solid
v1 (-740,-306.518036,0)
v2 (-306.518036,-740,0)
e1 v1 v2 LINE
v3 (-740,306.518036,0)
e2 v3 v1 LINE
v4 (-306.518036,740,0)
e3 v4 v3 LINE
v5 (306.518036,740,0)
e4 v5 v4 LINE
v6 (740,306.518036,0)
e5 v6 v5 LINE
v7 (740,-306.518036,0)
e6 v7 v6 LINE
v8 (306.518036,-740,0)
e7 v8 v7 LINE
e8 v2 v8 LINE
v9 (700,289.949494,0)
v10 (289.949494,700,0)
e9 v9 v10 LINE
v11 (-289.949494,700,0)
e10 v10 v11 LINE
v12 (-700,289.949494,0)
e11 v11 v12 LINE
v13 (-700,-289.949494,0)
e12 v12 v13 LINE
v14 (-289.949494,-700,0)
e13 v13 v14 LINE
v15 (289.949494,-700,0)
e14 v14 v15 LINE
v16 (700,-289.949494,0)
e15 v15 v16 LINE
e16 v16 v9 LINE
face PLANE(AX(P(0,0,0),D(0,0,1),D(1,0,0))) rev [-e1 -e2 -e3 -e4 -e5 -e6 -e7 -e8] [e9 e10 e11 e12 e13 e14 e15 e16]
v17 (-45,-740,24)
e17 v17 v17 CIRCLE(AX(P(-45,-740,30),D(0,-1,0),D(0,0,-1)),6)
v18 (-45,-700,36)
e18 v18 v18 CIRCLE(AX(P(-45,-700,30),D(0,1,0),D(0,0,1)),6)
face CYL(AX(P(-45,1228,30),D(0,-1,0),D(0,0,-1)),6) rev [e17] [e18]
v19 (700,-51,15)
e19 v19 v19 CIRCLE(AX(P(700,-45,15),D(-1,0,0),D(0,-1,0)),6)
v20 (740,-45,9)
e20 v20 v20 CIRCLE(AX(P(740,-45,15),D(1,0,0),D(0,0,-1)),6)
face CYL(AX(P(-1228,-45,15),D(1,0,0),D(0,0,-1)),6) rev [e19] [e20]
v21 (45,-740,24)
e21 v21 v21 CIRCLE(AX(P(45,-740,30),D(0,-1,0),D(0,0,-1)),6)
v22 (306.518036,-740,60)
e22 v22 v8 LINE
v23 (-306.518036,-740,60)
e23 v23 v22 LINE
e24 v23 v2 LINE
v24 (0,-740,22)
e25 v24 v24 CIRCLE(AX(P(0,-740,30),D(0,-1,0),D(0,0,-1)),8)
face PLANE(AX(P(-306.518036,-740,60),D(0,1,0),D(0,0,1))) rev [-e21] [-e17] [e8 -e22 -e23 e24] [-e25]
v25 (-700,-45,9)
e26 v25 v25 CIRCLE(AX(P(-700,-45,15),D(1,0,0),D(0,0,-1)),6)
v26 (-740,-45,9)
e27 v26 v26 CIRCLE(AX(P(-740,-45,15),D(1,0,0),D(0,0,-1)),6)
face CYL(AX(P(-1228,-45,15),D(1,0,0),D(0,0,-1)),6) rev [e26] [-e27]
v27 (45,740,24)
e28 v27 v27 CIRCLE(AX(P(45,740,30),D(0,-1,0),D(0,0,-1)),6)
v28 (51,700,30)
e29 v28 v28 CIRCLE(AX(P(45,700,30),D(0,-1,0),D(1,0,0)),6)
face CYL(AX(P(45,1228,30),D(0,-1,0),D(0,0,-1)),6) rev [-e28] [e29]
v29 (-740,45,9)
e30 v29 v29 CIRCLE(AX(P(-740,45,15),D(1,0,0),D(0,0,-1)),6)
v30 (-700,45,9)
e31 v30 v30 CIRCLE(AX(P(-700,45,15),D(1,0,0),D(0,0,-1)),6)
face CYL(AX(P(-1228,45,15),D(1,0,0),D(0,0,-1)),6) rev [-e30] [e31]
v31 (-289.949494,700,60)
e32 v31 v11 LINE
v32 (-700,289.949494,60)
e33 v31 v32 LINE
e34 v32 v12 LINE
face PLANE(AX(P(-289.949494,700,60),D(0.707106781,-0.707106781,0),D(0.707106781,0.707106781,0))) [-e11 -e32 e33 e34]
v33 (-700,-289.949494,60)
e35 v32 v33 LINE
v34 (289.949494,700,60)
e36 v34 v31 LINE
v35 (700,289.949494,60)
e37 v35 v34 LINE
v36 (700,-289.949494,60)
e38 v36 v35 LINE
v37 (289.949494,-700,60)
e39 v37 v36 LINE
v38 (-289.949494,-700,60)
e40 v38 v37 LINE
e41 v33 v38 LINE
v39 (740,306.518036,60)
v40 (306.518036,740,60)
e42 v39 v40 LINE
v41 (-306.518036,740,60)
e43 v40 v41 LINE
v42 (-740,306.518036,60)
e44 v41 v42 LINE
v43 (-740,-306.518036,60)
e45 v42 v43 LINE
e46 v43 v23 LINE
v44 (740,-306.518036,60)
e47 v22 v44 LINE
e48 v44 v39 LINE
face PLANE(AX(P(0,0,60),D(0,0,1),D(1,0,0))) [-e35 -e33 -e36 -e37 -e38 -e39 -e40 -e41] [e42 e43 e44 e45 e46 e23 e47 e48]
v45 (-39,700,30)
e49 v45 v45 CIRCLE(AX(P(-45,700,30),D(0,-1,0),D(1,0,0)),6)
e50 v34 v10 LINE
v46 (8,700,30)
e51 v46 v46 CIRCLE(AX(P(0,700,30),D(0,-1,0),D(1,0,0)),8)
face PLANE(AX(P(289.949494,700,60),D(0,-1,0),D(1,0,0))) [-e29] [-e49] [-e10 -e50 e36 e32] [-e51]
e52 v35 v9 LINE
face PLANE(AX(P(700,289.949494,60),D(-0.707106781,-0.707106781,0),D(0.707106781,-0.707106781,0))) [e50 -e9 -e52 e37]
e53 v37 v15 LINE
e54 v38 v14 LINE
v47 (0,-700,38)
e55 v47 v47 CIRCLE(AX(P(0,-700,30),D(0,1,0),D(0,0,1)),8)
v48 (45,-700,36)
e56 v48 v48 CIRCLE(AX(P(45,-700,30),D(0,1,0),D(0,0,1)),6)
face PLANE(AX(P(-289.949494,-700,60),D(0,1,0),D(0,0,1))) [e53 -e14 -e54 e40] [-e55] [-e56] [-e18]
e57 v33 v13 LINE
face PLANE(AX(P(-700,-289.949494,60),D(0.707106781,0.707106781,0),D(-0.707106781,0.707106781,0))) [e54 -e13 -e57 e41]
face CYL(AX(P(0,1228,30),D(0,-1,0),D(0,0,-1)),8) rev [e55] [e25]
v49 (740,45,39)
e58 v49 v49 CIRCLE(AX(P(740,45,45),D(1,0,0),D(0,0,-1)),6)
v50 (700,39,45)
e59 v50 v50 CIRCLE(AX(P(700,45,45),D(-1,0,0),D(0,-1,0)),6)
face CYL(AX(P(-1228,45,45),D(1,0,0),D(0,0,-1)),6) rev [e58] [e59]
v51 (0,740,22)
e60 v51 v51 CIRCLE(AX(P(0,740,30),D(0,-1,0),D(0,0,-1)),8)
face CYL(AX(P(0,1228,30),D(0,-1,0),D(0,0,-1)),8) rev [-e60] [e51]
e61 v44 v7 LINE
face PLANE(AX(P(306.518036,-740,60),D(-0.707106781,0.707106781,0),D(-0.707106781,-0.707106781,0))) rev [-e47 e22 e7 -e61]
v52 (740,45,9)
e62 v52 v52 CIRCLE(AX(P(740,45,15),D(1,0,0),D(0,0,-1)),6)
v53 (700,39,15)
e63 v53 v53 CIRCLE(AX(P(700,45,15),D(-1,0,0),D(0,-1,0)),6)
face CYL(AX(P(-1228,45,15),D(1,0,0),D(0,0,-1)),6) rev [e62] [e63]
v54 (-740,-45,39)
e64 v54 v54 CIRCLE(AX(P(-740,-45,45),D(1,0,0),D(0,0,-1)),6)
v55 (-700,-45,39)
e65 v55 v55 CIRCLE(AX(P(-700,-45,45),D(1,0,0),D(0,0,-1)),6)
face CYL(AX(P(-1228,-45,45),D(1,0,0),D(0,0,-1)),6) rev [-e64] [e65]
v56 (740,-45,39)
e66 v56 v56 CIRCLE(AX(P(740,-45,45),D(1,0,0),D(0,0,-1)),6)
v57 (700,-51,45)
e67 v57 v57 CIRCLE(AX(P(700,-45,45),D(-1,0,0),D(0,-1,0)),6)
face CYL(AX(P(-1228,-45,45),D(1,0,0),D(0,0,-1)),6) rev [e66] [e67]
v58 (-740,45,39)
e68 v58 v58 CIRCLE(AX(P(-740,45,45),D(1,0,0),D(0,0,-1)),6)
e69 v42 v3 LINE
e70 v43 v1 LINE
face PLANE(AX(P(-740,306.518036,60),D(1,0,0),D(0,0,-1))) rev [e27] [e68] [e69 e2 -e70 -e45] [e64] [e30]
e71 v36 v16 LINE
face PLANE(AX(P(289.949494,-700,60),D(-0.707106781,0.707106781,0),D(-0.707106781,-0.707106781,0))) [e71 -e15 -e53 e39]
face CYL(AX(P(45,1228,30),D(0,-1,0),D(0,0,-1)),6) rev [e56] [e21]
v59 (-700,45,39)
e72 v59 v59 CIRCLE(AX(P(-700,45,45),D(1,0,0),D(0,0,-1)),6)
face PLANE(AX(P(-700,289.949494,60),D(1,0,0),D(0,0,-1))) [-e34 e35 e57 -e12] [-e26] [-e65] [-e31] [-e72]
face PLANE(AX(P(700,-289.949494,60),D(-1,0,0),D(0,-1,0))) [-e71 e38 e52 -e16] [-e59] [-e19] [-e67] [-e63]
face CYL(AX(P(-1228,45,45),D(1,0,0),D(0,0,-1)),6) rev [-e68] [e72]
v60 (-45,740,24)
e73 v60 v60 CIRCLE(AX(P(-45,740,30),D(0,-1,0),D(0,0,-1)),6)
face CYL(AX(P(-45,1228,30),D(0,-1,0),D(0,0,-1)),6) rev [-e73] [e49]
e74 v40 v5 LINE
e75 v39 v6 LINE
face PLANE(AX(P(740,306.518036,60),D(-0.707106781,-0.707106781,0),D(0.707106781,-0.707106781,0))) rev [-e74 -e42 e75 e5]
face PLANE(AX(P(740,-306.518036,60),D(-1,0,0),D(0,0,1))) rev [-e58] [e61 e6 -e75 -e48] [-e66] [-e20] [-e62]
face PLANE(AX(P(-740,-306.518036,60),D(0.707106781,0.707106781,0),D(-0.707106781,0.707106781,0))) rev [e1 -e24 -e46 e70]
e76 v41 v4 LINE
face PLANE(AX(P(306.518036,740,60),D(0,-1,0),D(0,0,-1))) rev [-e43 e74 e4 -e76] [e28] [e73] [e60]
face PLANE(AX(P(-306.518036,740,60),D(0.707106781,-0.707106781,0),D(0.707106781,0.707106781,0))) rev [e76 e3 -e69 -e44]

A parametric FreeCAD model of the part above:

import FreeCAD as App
import Part
import Sketcher
Q = App.Units.Quantity


def add_polygon(sketch, points):
    """Adds a closed chain of lines whose ends are joined by coincident constraints."""
    first, n = sketch.GeometryCount, len(points)
    for a, b in zip(points, points[1:] + points[:1]):
        sketch.addGeometry(Part.LineSegment(App.Vector(*a, 0), App.Vector(*b, 0)), False)
    for i in range(n):
        sketch.addConstraint(Sketcher.Constraint("Coincident", first + i, 2, first + (i + 1) % n, 1))

doc = App.newDocument("Part")
body = doc.addObject("PartDesign::Body", "Body")

# Sketch on XY plane
sketch1 = body.newObject("Sketcher::SketchObject", "Sketch")
sketch1.AttachmentSupport = (doc.getObject("XY_Plane"), [""])
sketch1.MapMode = "FlatFace"
add_polygon(sketch1, [(740, 307), (307, 740), (-307, 740), (-740, 307), (-740, -307), (-307, -740), (307, -740), (740, -307)])  # lines 0-7
add_polygon(sketch1, [(700, 290), (700, -290), (290, -700), (-290, -700), (-700, -290), (-700, 290), (-290, 700), (290, 700)])  # lines 8-15
sketch1.addConstraint([
    Sketcher.Constraint("Horizontal", 1),
    Sketcher.Constraint("Vertical", 3),
    Sketcher.Constraint("Horizontal", 5),
    Sketcher.Constraint("Vertical", 7),
    Sketcher.Constraint("Vertical", 8),
    Sketcher.Constraint("Horizontal", 10),
    Sketcher.Constraint("Vertical", 12),
    Sketcher.Constraint("Horizontal", 14),
    Sketcher.Constraint("Symmetric", 0, 2, 4, 2, -1, 1),
    Sketcher.Constraint("Symmetric", 2, 2, 6, 2, -1, 1),
    Sketcher.Constraint("Symmetric", 8, 2, 12, 2, -1, 1),
    Sketcher.Constraint("Symmetric", 9, 2, 13, 2, -1, 1),
    Sketcher.Constraint("Perpendicular", 0, 2),
    Sketcher.Constraint("Perpendicular", 2, 4),
    Sketcher.Constraint("Perpendicular", 4, 6),
    Sketcher.Constraint("Parallel", 6, 9),
    Sketcher.Constraint("Perpendicular", 9, 11),
    Sketcher.Constraint("Perpendicular", 13, 15),
    Sketcher.Constraint("Horizontal", 3, 2, 6, 2),
    Sketcher.Constraint("Horizontal", 8, 2, 11, 2),
    Sketcher.Constraint("Horizontal", 12, 2, 15, 2),
    Sketcher.Constraint("Vertical", 1, 2, 4, 2),
    Sketcher.Constraint("Equal", 5, 3),
    Sketcher.Constraint("Equal", 14, 8),
    Sketcher.Constraint("DistanceY", -1, 1, 0, 2, Q("740 mm")),
    Sketcher.Constraint("DistanceX", -1, 1, 8, 2, Q("700 mm")),
    Sketcher.Constraint("DistanceX", 1, 2, 1, 1, Q("613.036072 mm")),
    Sketcher.Constraint("DistanceX", 10, 2, 10, 1, Q("579.898987 mm")),
])
pad1 = body.newObject("PartDesign::Pad", "Pad")
pad1.Profile = sketch1
pad1.Length = 60

# Sketch on XZ plane
sketch2 = body.newObject("Sketcher::SketchObject", "Sketch001")
sketch2.AttachmentSupport = (doc.getObject("XZ_Plane"), [""])
sketch2.MapMode = "FlatFace"
sketch2.AttachmentOffset = App.Placement(App.Vector(0, 0, 740), App.Rotation())
sketch2.addGeometry([
    Part.Circle(App.Vector(0, 30, 0), App.Vector(0, 0, 1), 8),
    Part.Circle(App.Vector(-45, 30, 0), App.Vector(0, 0, 1), 6),
    Part.Circle(App.Vector(45, 30, 0), App.Vector(0, 0, 1), 6),
], False)
sketch2.addConstraint([
    Sketcher.Constraint("Equal", 1, 2),
    Sketcher.Constraint("Symmetric", 1, 3, 2, 3, -2),
    Sketcher.Constraint("PointOnObject", 0, 3, -2),
    Sketcher.Constraint("Horizontal", 0, 3, 1, 3),
    Sketcher.Constraint("Diameter", 0, Q("16 mm")),
    Sketcher.Constraint("Diameter", 1, Q("12 mm")),
    Sketcher.Constraint("DistanceY", -1, 1, 0, 3, Q("30 mm")),
    Sketcher.Constraint("DistanceX", 1, 3, -1, 1, Q("45 mm")),
])
pocket1 = body.newObject("PartDesign::Pocket", "Pocket")
pocket1.Profile = sketch2
pocket1.Length = 1968

# Sketch on YZ plane
sketch3 = body.newObject("Sketcher::SketchObject", "Sketch002")
sketch3.AttachmentSupport = (doc.getObject("YZ_Plane"), [""])
sketch3.MapMode = "FlatFace"
sketch3.AttachmentOffset = App.Placement(App.Vector(0, 0, 740), App.Rotation())
sketch3.addGeometry([
    Part.Circle(App.Vector(45, 15, 0), App.Vector(0, 0, 1), 6),
    Part.Circle(App.Vector(-45, 15, 0), App.Vector(0, 0, 1), 6),
    Part.Circle(App.Vector(45, 45, 0), App.Vector(0, 0, 1), 6),
    Part.Circle(App.Vector(-45, 45, 0), App.Vector(0, 0, 1), 6),
], False)
sketch3.addConstraint([
    Sketcher.Constraint("Equal", 0, 1),
    Sketcher.Constraint("Equal", 1, 2),
    Sketcher.Constraint("Equal", 2, 3),
    Sketcher.Constraint("Symmetric", 0, 3, 1, 3, -2),
    Sketcher.Constraint("Symmetric", 2, 3, 3, 3, -2),
    Sketcher.Constraint("Vertical", 0, 3, 2, 3),
    Sketcher.Constraint("Diameter", 0, Q("12 mm")),
    Sketcher.Constraint("DistanceX", -1, 1, 0, 3, Q("45 mm")),
    Sketcher.Constraint("DistanceY", -1, 1, 0, 3, Q("15 mm")),
    Sketcher.Constraint("DistanceY", -1, 1, 2, 3, Q("45 mm")),
])
pocket2 = body.newObject("PartDesign::Pocket", "Pocket001")
pocket2.Profile = sketch3
pocket2.Length = 1968

doc.recompute()
